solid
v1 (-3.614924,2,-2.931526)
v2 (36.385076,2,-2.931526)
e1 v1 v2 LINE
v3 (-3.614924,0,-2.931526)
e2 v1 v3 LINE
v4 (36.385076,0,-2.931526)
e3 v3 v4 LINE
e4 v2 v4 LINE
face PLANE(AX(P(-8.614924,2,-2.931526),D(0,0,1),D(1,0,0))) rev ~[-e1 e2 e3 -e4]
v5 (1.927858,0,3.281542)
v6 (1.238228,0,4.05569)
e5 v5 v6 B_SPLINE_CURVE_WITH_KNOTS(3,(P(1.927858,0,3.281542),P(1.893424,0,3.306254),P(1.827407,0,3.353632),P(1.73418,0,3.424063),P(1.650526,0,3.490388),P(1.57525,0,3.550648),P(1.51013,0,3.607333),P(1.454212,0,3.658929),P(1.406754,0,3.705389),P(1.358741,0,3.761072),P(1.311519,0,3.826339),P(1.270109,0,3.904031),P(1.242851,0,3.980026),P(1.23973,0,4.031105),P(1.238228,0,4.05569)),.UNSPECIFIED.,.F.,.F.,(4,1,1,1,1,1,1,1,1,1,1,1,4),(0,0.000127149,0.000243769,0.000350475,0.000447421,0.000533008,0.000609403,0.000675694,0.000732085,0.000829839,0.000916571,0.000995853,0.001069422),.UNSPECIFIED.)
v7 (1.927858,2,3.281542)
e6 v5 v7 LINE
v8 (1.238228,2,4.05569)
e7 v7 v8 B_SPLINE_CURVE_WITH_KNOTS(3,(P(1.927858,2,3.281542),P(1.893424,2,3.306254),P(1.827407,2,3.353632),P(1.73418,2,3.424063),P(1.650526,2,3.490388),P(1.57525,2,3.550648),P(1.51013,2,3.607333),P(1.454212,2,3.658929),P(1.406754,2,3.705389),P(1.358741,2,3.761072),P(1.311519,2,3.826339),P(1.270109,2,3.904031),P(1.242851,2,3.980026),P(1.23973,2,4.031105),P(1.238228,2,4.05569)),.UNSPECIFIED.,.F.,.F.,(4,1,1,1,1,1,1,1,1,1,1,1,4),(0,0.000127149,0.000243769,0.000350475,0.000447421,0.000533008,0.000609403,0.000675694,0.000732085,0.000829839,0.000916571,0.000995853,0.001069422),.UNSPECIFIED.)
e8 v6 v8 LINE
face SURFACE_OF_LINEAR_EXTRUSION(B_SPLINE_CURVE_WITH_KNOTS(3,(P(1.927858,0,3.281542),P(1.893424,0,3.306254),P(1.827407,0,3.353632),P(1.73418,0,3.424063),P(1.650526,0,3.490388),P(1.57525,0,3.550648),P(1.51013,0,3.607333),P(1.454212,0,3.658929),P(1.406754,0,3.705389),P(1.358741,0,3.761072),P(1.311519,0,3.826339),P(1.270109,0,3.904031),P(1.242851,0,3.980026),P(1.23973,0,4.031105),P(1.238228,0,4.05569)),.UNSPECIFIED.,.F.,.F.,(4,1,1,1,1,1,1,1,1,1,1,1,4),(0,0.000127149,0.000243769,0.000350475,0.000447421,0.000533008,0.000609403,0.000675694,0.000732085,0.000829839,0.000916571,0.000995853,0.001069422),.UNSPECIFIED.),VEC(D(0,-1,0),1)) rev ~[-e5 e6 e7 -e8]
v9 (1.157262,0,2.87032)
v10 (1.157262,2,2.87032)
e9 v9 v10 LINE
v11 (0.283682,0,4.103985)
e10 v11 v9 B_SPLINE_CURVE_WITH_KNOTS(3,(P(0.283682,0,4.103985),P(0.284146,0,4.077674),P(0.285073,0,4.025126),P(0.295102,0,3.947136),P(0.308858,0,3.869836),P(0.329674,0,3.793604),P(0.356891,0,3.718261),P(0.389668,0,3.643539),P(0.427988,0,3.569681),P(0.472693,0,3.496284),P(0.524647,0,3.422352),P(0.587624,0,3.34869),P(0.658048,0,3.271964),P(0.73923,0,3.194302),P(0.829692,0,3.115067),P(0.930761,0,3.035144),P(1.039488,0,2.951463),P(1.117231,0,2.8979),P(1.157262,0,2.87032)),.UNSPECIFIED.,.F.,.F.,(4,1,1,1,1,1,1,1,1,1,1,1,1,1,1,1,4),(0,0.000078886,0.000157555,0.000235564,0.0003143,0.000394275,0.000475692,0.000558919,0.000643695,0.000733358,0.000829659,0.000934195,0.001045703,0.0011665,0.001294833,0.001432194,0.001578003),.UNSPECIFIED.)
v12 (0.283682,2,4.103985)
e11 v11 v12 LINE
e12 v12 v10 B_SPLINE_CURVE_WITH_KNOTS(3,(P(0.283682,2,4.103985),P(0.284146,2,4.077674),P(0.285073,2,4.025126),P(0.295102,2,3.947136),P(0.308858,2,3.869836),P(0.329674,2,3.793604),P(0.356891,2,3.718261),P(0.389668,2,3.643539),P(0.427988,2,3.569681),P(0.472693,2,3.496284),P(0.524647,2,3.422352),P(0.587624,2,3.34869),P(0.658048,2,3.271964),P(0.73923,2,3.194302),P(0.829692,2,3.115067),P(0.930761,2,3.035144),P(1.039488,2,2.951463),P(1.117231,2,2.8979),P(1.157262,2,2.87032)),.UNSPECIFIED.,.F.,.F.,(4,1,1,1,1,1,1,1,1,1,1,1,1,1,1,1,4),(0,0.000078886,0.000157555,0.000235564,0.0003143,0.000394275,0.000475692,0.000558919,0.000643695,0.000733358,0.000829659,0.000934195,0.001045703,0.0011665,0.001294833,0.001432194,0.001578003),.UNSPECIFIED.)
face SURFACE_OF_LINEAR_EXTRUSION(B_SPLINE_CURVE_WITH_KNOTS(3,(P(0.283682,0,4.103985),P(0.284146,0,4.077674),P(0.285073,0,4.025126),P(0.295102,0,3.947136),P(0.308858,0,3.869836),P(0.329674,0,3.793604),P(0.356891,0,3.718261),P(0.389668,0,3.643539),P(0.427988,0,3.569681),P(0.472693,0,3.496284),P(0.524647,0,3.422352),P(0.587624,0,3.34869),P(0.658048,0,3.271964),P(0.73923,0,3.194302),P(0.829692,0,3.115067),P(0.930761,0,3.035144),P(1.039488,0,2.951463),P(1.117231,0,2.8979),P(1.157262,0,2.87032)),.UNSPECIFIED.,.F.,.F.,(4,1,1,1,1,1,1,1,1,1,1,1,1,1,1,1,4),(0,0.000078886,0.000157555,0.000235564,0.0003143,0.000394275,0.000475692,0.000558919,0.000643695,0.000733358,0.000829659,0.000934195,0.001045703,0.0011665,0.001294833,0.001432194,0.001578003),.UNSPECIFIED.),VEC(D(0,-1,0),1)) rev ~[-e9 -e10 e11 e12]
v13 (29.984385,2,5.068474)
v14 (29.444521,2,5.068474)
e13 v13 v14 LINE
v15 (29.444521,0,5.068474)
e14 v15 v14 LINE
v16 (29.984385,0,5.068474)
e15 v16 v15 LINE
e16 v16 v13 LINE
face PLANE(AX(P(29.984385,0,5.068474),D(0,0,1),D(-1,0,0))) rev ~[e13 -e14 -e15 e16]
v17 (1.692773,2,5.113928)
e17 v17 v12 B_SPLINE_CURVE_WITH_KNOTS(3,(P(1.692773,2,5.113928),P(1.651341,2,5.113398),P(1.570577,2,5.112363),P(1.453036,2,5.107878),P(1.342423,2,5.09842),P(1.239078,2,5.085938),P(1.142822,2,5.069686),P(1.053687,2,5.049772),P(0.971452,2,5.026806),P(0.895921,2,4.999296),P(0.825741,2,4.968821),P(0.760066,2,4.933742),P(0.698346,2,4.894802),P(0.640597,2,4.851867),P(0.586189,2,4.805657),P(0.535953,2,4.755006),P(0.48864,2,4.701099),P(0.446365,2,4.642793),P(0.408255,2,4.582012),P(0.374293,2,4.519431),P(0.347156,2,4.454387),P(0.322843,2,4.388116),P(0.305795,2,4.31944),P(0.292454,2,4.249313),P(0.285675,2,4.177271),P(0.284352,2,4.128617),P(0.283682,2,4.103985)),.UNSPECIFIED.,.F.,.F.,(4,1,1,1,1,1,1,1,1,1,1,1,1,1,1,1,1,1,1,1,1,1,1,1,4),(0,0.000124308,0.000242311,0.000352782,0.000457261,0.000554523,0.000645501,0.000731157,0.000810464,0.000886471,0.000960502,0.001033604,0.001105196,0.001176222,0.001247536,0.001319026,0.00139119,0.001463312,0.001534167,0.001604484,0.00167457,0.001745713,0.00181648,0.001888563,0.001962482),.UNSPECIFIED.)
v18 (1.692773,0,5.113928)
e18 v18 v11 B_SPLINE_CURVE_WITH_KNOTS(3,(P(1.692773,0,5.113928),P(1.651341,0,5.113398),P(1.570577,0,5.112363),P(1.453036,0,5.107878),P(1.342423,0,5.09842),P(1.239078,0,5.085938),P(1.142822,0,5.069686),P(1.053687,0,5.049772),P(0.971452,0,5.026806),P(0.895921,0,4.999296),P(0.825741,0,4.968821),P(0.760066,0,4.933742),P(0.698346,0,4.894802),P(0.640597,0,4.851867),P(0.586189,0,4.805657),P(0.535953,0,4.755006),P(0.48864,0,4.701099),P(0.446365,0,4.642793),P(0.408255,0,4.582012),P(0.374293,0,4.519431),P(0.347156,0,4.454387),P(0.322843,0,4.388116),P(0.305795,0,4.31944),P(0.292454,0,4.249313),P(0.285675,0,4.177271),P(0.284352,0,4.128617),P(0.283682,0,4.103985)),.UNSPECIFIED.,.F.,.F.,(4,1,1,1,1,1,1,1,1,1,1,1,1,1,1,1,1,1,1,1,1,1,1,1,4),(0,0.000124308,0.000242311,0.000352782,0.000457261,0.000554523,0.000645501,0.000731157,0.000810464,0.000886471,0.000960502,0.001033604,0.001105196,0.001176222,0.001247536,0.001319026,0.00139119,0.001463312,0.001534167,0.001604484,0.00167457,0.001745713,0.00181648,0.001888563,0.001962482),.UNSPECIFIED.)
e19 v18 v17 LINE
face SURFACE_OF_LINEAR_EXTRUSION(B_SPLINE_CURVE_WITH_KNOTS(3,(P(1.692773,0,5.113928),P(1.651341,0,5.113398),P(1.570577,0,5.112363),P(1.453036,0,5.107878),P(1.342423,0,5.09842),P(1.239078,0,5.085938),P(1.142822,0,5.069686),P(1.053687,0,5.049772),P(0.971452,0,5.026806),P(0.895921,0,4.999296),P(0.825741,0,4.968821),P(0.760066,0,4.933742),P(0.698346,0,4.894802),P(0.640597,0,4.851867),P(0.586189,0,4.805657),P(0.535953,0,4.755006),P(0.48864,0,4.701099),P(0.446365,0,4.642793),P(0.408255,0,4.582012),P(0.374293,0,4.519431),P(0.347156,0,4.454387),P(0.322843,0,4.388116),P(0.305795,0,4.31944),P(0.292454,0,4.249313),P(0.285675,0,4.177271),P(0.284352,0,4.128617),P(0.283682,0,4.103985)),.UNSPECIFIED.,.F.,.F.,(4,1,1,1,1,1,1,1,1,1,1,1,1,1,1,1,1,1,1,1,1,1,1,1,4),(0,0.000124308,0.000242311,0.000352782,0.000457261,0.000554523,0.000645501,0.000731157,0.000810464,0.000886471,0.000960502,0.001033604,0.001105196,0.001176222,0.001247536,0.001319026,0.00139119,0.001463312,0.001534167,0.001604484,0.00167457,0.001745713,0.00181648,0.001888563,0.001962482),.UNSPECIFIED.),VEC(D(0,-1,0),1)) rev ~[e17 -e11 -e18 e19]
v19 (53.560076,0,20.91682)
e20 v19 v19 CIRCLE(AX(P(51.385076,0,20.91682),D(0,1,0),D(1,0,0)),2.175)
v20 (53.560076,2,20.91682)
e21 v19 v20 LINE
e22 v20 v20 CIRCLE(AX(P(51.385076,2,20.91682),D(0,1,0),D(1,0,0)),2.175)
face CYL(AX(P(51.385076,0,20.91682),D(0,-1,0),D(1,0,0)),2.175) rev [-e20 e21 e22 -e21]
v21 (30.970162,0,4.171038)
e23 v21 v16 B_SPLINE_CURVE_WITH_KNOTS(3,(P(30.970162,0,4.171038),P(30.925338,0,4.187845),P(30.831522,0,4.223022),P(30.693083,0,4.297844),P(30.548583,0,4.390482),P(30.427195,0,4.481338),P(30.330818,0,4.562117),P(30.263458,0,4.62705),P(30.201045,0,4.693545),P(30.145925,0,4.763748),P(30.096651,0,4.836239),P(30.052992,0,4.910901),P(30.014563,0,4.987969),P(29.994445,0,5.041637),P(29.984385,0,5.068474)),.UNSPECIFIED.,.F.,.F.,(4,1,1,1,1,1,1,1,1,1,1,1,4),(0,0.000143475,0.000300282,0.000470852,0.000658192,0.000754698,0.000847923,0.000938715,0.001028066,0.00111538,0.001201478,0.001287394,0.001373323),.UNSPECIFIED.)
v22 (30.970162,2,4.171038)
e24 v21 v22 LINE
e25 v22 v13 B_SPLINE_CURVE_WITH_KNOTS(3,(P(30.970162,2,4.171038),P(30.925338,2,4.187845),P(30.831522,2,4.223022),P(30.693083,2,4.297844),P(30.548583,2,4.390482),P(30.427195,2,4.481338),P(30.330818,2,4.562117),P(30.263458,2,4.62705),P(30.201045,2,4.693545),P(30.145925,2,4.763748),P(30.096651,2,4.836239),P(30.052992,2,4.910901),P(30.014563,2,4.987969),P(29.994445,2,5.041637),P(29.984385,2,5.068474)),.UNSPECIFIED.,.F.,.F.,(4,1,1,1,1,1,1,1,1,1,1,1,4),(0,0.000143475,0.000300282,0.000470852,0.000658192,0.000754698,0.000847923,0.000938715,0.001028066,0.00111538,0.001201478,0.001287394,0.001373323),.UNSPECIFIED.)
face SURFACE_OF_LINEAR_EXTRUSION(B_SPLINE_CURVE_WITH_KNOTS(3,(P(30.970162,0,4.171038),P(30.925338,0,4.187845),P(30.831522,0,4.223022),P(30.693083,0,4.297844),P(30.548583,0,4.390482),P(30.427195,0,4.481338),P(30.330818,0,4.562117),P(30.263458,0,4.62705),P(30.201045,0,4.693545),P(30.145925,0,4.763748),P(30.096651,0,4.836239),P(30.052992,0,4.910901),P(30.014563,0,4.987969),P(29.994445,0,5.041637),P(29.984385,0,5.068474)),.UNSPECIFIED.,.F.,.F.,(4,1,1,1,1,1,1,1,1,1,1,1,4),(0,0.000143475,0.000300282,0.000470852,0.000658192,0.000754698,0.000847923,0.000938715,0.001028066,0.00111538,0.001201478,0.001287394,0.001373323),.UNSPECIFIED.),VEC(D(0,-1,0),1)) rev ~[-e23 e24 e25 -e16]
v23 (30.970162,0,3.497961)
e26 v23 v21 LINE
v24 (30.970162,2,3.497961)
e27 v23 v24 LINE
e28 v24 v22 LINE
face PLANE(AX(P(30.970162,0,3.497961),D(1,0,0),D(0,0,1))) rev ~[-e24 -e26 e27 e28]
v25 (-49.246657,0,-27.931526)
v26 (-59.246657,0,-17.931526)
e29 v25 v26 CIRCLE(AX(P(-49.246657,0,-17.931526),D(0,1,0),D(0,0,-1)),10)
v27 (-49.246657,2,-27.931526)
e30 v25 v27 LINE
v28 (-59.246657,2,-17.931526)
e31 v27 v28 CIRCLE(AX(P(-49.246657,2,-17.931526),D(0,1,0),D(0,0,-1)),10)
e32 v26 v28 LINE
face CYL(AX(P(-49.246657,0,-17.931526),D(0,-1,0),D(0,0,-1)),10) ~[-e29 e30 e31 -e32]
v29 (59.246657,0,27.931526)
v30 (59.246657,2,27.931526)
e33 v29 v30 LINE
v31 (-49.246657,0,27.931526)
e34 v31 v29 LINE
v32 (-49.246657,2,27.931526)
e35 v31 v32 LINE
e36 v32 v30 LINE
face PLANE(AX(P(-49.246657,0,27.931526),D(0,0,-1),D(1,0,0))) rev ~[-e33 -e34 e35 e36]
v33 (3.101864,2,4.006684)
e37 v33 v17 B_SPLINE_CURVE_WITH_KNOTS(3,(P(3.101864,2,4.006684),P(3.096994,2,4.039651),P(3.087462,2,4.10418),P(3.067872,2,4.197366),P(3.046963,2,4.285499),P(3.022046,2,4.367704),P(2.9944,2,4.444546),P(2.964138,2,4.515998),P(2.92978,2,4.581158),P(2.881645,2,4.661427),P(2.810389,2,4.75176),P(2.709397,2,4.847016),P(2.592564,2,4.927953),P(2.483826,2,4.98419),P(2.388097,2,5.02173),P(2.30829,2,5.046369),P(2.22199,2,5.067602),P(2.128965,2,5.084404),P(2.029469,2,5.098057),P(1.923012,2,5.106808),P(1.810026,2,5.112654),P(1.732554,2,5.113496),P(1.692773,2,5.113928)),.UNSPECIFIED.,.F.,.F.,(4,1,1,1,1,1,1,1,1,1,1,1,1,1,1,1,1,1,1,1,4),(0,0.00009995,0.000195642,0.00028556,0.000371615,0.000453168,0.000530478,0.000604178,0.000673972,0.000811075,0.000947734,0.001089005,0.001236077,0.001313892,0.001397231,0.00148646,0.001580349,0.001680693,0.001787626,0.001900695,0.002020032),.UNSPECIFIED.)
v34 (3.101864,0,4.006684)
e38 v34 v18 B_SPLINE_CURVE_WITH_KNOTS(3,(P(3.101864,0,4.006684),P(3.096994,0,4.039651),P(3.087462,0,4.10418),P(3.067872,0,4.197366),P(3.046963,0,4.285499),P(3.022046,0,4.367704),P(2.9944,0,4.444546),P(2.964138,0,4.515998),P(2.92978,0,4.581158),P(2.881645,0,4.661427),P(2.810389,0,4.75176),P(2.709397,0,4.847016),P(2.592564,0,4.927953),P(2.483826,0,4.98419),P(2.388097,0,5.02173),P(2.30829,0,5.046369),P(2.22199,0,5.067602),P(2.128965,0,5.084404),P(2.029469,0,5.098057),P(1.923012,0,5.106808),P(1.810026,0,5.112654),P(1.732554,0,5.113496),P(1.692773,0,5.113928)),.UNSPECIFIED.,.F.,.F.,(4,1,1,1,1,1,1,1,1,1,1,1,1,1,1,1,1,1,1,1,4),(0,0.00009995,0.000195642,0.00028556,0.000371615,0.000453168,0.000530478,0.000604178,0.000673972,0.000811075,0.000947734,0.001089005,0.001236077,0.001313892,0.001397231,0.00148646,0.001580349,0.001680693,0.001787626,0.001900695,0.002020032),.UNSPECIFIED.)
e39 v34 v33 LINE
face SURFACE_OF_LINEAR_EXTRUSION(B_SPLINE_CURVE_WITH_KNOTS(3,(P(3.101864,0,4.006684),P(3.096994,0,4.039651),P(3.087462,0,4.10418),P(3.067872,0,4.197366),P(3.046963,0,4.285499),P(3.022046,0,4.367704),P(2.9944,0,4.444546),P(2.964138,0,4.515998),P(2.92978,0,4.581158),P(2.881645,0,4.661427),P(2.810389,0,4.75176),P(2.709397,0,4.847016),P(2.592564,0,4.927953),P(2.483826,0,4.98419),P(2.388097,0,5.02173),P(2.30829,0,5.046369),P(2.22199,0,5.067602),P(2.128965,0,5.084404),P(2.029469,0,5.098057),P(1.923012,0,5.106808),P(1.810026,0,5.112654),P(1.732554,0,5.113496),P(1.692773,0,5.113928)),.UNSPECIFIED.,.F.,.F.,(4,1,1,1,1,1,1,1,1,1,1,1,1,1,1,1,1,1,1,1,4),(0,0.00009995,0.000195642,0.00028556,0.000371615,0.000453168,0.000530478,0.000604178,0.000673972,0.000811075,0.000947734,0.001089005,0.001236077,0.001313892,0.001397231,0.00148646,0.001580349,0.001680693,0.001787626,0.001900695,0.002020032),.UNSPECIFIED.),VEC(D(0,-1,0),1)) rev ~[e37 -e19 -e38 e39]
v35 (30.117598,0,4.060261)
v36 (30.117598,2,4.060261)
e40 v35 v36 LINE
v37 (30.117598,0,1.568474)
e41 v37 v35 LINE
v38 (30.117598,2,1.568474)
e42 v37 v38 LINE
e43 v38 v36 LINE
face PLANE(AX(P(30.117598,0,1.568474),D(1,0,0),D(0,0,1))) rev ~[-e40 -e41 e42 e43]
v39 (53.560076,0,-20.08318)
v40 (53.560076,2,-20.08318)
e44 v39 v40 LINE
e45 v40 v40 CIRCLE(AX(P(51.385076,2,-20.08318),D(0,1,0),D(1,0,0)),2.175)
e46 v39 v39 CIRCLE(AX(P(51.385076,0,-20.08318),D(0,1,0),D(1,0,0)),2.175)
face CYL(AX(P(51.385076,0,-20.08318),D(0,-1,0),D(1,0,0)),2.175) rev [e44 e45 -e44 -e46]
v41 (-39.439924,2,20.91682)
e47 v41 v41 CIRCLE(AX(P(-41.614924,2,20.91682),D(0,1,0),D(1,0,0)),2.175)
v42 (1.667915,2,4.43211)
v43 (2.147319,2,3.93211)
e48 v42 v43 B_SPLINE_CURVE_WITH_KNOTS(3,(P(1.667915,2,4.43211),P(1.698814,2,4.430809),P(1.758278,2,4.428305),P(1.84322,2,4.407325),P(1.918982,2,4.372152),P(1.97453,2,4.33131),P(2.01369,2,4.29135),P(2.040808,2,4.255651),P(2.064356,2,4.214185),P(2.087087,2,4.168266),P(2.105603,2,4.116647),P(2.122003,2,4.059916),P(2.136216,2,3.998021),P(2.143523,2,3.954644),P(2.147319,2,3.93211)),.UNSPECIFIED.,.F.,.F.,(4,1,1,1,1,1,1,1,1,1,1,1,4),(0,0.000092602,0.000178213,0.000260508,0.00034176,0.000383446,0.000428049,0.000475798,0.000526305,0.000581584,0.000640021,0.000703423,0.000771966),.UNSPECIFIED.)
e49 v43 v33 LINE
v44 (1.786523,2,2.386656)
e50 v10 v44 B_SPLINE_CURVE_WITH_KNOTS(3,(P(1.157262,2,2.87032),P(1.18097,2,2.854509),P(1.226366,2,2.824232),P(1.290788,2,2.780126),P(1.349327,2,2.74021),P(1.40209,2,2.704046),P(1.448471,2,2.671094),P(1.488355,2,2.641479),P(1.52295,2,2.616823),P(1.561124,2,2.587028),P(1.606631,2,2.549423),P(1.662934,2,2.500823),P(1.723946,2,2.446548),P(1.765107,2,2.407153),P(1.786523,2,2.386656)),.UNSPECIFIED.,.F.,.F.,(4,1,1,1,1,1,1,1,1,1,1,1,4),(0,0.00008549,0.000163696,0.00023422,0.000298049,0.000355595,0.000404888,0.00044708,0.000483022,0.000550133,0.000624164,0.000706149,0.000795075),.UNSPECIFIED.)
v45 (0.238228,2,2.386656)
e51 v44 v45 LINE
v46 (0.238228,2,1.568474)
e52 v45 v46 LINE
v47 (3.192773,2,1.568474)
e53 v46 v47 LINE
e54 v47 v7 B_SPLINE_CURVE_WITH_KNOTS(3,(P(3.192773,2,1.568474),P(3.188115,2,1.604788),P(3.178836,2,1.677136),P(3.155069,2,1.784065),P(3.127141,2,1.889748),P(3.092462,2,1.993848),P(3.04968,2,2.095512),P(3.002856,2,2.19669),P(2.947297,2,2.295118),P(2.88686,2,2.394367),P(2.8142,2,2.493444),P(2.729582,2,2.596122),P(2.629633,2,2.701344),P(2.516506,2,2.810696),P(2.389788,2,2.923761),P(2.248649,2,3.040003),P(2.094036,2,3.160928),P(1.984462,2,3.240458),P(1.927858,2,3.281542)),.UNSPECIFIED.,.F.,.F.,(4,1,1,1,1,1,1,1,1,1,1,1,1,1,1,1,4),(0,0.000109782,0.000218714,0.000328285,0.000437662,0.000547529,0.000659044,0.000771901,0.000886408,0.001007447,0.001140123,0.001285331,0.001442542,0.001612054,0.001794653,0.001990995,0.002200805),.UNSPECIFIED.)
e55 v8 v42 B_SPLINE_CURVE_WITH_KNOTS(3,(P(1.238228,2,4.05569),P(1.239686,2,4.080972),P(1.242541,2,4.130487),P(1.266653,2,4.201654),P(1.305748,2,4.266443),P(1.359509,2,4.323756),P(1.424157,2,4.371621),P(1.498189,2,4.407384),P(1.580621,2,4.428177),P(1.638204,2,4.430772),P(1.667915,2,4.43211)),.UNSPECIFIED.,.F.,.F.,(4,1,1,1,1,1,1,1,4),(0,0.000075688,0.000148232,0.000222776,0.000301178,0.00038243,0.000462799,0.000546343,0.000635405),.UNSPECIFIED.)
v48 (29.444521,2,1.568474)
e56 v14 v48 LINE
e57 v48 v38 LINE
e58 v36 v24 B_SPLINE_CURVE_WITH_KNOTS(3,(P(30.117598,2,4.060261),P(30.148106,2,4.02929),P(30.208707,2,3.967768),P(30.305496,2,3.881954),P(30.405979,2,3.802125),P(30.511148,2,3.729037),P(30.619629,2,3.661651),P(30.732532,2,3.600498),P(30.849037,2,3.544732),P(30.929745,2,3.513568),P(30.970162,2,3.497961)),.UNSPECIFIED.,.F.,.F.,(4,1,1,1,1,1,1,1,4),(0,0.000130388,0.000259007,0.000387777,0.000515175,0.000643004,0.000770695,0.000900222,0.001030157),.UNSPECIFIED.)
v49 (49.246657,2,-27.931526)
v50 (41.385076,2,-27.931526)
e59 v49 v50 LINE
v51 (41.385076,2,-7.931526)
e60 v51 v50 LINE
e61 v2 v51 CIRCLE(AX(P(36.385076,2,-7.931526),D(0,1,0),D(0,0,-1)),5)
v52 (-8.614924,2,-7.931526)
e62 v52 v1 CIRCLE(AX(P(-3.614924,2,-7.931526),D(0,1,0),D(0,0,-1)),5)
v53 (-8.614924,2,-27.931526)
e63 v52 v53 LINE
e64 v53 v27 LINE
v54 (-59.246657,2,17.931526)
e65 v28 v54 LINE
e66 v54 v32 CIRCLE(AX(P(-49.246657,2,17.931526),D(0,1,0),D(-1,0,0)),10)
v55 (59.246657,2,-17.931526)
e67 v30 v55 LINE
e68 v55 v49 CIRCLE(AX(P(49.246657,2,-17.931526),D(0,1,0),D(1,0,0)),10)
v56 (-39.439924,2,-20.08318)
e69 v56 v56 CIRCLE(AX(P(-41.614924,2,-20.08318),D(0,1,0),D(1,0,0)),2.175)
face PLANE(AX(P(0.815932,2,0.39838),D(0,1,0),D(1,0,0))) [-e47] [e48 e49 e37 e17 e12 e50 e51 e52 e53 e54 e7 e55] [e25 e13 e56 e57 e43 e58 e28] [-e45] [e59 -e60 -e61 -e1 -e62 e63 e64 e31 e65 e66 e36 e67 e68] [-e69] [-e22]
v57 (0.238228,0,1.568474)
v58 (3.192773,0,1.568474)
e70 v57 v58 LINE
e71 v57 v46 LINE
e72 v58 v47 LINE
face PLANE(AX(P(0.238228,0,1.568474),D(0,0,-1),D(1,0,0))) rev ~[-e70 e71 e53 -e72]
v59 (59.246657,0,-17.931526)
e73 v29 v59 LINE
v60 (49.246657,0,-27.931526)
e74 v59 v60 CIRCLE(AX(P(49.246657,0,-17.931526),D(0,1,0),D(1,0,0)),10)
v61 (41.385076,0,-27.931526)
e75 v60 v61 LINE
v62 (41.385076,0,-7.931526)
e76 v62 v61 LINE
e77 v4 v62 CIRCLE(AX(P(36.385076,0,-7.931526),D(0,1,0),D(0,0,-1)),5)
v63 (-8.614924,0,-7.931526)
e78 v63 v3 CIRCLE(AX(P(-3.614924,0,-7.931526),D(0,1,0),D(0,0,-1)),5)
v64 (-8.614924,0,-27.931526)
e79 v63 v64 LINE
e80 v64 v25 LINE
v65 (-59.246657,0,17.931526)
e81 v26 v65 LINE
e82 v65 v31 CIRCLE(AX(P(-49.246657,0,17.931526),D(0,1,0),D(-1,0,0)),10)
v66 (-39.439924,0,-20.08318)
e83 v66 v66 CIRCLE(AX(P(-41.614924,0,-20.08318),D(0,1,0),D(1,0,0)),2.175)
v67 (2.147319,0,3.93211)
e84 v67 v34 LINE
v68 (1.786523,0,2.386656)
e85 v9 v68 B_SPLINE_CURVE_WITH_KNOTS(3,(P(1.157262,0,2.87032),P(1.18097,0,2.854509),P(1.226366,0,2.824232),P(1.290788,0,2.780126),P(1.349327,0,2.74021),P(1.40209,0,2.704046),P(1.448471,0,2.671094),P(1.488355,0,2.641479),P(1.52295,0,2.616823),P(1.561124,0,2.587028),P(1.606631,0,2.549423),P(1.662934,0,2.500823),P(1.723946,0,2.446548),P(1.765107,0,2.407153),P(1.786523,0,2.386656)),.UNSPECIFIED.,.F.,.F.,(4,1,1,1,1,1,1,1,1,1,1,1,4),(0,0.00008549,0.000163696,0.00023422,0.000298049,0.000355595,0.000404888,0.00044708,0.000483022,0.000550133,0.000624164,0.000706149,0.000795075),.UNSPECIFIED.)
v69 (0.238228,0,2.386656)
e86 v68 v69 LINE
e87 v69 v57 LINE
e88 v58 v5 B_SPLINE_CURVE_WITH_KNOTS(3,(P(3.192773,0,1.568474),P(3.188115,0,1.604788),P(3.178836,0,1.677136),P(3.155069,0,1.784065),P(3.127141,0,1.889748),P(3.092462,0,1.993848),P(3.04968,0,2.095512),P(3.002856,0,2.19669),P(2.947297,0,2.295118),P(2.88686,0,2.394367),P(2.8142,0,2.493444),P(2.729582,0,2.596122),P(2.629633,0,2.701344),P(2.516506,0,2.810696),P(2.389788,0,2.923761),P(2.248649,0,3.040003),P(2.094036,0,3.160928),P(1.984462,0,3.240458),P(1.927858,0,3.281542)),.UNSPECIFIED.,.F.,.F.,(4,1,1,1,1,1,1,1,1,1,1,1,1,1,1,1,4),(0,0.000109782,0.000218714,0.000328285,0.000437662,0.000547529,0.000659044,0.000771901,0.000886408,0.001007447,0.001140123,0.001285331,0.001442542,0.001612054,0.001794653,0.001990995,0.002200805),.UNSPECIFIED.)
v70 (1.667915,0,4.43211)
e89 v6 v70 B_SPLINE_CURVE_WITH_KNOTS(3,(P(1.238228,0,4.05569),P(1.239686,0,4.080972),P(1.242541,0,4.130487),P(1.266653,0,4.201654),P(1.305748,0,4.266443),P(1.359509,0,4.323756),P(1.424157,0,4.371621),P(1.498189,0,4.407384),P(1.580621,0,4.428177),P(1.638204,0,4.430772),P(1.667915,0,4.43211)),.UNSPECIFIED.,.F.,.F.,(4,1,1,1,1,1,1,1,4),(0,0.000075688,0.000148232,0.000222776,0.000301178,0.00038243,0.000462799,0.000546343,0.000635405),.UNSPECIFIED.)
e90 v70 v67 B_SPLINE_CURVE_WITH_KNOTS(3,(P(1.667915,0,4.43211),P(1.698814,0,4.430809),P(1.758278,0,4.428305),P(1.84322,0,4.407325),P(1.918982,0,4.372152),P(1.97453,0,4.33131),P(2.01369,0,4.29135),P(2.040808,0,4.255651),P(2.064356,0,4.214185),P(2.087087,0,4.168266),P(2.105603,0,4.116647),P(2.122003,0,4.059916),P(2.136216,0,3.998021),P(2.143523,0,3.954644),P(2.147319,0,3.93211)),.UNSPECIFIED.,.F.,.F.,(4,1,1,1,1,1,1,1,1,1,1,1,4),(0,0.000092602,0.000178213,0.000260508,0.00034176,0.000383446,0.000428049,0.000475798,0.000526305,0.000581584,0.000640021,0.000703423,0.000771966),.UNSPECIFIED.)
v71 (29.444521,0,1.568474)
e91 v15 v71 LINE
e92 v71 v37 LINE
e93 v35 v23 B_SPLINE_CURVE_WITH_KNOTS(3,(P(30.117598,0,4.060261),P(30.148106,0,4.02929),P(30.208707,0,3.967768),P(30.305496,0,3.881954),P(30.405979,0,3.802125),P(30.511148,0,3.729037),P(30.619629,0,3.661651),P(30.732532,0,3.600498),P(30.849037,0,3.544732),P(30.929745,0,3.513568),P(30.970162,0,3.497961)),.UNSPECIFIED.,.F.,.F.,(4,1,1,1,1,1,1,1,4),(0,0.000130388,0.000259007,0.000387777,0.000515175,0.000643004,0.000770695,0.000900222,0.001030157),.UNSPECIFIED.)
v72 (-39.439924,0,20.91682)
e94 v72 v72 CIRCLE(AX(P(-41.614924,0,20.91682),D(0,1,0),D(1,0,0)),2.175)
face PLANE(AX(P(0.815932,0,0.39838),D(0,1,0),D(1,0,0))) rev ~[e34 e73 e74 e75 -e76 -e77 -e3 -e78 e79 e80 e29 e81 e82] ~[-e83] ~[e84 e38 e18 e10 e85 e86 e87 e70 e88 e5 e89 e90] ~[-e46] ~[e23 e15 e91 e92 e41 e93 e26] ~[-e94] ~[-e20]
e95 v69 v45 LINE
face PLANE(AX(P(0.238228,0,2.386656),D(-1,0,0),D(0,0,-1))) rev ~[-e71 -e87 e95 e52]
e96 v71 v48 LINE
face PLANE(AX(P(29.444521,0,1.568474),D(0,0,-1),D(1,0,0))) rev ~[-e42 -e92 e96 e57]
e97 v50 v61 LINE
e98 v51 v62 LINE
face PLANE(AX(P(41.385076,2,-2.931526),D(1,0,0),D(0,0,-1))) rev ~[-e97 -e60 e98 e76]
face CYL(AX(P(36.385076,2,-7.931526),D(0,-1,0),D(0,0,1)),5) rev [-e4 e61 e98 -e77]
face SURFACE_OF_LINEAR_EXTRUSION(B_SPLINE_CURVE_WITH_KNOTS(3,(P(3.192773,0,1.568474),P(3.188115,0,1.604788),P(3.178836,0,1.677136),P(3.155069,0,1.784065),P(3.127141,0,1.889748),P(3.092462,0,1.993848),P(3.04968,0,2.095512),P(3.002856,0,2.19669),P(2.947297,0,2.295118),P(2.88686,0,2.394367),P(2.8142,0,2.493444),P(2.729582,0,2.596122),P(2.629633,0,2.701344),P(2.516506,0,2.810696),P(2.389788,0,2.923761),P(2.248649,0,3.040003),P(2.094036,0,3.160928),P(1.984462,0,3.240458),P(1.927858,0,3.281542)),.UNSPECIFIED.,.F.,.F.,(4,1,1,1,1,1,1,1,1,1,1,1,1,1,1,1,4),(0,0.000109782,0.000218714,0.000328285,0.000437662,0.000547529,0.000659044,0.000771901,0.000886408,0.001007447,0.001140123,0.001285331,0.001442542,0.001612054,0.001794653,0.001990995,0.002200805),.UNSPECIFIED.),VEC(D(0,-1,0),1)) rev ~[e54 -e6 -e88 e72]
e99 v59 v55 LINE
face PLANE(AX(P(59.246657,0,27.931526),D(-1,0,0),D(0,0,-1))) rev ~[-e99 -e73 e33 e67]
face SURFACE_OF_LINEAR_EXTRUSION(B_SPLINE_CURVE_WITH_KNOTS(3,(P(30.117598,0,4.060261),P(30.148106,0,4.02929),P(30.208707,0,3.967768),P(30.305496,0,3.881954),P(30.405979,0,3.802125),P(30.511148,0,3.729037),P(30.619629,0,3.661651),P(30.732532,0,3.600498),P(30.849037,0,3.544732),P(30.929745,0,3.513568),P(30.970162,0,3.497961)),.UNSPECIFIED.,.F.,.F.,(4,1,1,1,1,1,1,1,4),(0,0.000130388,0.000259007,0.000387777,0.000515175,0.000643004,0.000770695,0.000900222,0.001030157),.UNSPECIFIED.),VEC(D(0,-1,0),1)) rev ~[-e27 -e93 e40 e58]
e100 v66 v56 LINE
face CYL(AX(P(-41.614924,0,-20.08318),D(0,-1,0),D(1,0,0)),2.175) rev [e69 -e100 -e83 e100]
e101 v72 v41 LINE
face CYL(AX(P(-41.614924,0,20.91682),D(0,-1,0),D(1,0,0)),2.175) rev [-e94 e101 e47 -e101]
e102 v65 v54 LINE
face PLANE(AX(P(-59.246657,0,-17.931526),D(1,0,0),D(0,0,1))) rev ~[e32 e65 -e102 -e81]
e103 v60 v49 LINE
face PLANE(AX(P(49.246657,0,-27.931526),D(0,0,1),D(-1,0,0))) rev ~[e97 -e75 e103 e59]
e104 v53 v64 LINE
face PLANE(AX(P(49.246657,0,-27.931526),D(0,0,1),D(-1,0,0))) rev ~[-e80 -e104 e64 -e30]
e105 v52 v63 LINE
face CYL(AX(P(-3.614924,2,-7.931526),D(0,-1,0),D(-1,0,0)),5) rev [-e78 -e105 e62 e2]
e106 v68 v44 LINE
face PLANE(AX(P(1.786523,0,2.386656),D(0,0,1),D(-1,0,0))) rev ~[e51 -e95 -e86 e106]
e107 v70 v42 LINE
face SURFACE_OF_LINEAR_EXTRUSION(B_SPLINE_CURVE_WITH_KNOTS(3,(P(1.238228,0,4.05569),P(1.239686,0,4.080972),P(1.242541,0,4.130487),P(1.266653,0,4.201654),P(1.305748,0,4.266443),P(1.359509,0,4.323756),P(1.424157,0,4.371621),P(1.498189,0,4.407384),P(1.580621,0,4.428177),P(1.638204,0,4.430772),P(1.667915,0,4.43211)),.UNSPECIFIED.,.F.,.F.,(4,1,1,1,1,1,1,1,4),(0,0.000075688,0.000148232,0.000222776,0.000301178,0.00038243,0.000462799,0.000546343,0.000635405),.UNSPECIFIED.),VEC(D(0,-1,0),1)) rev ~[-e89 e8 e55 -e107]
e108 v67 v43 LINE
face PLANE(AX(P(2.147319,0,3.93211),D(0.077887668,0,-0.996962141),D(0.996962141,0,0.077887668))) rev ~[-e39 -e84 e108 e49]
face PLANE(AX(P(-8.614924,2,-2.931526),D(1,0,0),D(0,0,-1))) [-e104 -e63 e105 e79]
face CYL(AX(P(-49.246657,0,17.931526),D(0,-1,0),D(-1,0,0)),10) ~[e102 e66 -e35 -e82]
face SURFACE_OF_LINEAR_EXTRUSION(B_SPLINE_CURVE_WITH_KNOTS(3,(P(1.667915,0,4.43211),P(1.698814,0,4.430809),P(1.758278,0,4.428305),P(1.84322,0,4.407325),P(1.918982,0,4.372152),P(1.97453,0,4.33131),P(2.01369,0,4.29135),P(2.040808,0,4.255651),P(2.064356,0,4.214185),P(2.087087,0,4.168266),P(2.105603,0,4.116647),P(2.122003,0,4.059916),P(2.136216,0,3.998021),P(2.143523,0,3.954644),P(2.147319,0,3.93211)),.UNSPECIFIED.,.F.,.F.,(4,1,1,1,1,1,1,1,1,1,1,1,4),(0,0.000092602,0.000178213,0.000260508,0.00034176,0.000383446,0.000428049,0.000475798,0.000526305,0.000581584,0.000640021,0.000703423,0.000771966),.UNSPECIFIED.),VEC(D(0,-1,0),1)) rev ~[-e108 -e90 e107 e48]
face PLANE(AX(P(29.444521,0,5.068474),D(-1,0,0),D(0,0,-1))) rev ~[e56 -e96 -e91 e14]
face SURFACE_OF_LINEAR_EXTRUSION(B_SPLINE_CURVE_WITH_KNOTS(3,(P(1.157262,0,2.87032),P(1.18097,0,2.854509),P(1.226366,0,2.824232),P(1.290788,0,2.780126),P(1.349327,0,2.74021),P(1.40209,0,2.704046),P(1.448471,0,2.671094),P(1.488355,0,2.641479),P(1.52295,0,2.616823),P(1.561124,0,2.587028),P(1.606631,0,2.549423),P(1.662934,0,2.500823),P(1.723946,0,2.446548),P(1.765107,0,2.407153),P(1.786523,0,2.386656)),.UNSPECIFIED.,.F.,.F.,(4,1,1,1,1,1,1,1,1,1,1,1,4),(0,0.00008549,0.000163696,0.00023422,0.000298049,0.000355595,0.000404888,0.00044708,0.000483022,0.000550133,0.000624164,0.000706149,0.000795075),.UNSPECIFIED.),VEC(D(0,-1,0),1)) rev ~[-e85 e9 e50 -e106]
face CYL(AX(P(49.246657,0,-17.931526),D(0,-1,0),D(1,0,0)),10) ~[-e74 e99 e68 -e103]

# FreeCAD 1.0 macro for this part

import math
import FreeCAD as App
import Part
import Sketcher
from FreeCAD import Vector
Q = App.Units.Quantity


def edges_at(feature, points):
    """Names of the edges that pass closest to the given points."""
    edges = feature.Shape.Edges
    near = lambda p: min(range(len(edges)), key=lambda i: edges[i].distToShape(Part.Vertex(*p))[0])
    return sorted({f"Edge{near(p) + 1}" for p in points})

doc = App.newDocument("Part")
params = doc.addObject("Spreadsheet::Sheet", "Params")
for row, (alias, value) in enumerate([
    ("sketch1_radius", "10 mm"),
    ("sketch1_diameter", "4.35 mm"),
    ("pad1_length", "2 mm"),
    ("sketch2_width", "50 mm"),
    ("sketch2_height", "25 mm"),
    ("pocket1_length", "2 mm"),
    ("fillet_radius", "5 mm"),
    ("pocket2_length", "2 mm"),
], start=1):
    params.set(f"A{row}", alias)
    params.set(f"B{row}", "=" + value)
    params.setAlias(f"B{row}", alias)

body = doc.addObject("PartDesign::Body", "Body")

# Sketch on XZ plane
sketch1 = doc.addObject("Sketcher::SketchObject", "Sketch")
body.addObject(sketch1)
sketch1.AttachmentSupport = (doc.XZ_Plane, [""])
sketch1.MapMode = "FlatFace"
sketch1.addGeometry([
    Part.LineSegment(Vector(-59.2, -17.9, 0), Vector(-59.2, 17.9, 0)),  # 0
    Part.ArcOfCircle(Part.Circle(Vector(-49.2, 17.9, 0), Vector(0, 0, 1), 10), math.radians(90), math.radians(180)),  # 1
    Part.LineSegment(Vector(-49.2, 27.9, 0), Vector(59.2, 27.9, 0)),  # 2
    Part.LineSegment(Vector(59.2, 27.9, 0), Vector(59.2, -17.9, 0)),  # 3
    Part.ArcOfCircle(Part.Circle(Vector(49.2, -17.9, 0), Vector(0, 0, 1), 10), math.radians(-90), math.radians(0)),  # 4
    Part.LineSegment(Vector(49.2, -27.9, 0), Vector(-49.2, -27.9, 0)),  # 5
    Part.ArcOfCircle(Part.Circle(Vector(-49.2, -17.9, 0), Vector(0, 0, 1), 10), math.radians(180), math.radians(270)),  # 6
    Part.Circle(Vector(-41.6, 20.9, 0), Vector(0, 0, 1), 2.2),  # 7
    Part.Circle(Vector(51.4, 20.9, 0), Vector(0, 0, 1), 2.2),  # 8
    Part.Circle(Vector(-41.6, -20.1, 0), Vector(0, 0, 1), 2.2),  # 9
    Part.Circle(Vector(51.4, -20.1, 0), Vector(0, 0, 1), 2.2),  # 10
], False)
sketch1.addConstraint([
    Sketcher.Constraint("Tangent", 0, 2, 1, 2),
    Sketcher.Constraint("Tangent", 1, 1, 2, 1),
    Sketcher.Constraint("Coincident", 2, 2, 3, 1),
    Sketcher.Constraint("Tangent", 3, 2, 4, 2),
    Sketcher.Constraint("Tangent", 4, 1, 5, 1),
    Sketcher.Constraint("Tangent", 5, 2, 6, 2),
    Sketcher.Constraint("Tangent", 6, 1, 0, 1),
    Sketcher.Constraint("Vertical", 0),
    Sketcher.Constraint("Horizontal", 2),
    Sketcher.Constraint("Vertical", 3),
    Sketcher.Constraint("Horizontal", 5),
    Sketcher.Constraint("Equal", 1, 4),
    Sketcher.Constraint("Equal", 4, 6),
    Sketcher.Constraint("Equal", 7, 8),
    Sketcher.Constraint("Equal", 8, 9),
    Sketcher.Constraint("Equal", 9, 10),
    Sketcher.Constraint("Symmetric", 1, 3, 4, 3, -1, 1),
    Sketcher.Constraint("Horizontal", 7, 3, 8, 3),
    Sketcher.Constraint("Horizontal", 9, 3, 10, 3),
    Sketcher.Constraint("Vertical", 7, 3, 9, 3),
    Sketcher.Constraint("Vertical", 8, 3, 10, 3),
    Sketcher.Constraint("Radius", 1, Q("10 mm")),
    Sketcher.Constraint("Diameter", 7, Q("4.35 mm")),
    Sketcher.Constraint("DistanceX", 7, 3, 8, 3, Q("93 mm")),
    Sketcher.Constraint("DistanceY", 9, 3, 7, 3, Q("41 mm")),
    Sketcher.Constraint("DistanceX", 2, 1, 2, 2, Q("108.493314 mm")),
    Sketcher.Constraint("DistanceY", 0, 1, 0, 2, Q("35.863053 mm")),
    Sketcher.Constraint("DistanceY", -1, 1, 7, 3, Q("20.91682 mm")),
    Sketcher.Constraint("DistanceX", 7, 3, 4, 3, Q("90.861581 mm")),
])
sketch1.setExpression("Constraints[21]", "Params.sketch1_radius")
sketch1.setExpression("Constraints[22]", "Params.sketch1_diameter")
pad1 = doc.addObject("PartDesign::Pad", "Pad")
body.addObject(pad1)
pad1.Profile = sketch1
pad1.setExpression("Length", "Params.pad1_length")
pad1.Reversed = True

# Sketch on XZ plane
sketch2 = doc.addObject("Sketcher::SketchObject", "Sketch001")
body.addObject(sketch2)
sketch2.AttachmentSupport = (doc.XZ_Plane, [""])
sketch2.MapMode = "FlatFace"
sketch2.AttachmentOffset = App.Placement(Vector(0, 0, -2), App.Rotation())
sketch2.addGeometry([
    Part.LineSegment(Vector(-9, -28, 0), Vector(-9, -3, 0)),
    Part.LineSegment(Vector(-9, -3, 0), Vector(41, -3, 0)),
    Part.LineSegment(Vector(41, -3, 0), Vector(41, -28, 0)),
    Part.LineSegment(Vector(41, -28, 0), Vector(-9, -28, 0)),
], False)
sketch2.addConstraint([
    Sketcher.Constraint("Coincident", 0, 2, 1, 1),
    Sketcher.Constraint("Coincident", 1, 2, 2, 1),
    Sketcher.Constraint("Coincident", 2, 2, 3, 1),
    Sketcher.Constraint("Coincident", 3, 2, 0, 1),
    Sketcher.Constraint("Vertical", 0),
    Sketcher.Constraint("Horizontal", 1),
    Sketcher.Constraint("Vertical", 2),
    Sketcher.Constraint("Horizontal", 3),
    Sketcher.Constraint("DistanceX", 1, 1, 1, 2, Q("50 mm")),
    Sketcher.Constraint("DistanceY", 0, 1, 0, 2, Q("25 mm")),
    Sketcher.Constraint("DistanceX", 0, 2, -1, 1, Q("8.614924 mm")),
    Sketcher.Constraint("DistanceY", 0, 2, -1, 1, Q("2.931526 mm")),
])
sketch2.setExpression("Constraints[8]", "Params.sketch2_width")
sketch2.setExpression("Constraints[9]", "Params.sketch2_height")
pocket1 = doc.addObject("PartDesign::Pocket", "Pocket")
body.addObject(pocket1)
pocket1.Profile = sketch2
pocket1.setExpression("Length", "Params.pocket1_length")
pocket1.Reversed = True
doc.recompute()

fillet = doc.addObject("PartDesign::Fillet", "Fillet")
body.addObject(fillet)
fillet.Base = (pocket1, edges_at(pocket1, [(41.385, 1, -2.932), (-8.615, 1, -2.932)]))
fillet.setExpression("Radius", "Params.fillet_radius")

# Sketch on XZ plane
sketch3 = doc.addObject("Sketcher::SketchObject", "Sketch002")
body.addObject(sketch3)
sketch3.AttachmentSupport = (doc.XZ_Plane, [""])
sketch3.MapMode = "FlatFace"
sketch3.addGeometry([
    Part.LineSegment(Vector(29.444521, 1.568474, 0), Vector(30.117598, 1.568474, 0)),  # 0
    Part.LineSegment(Vector(30.117598, 1.568474, 0), Vector(30.117598, 4.060261, 0)),  # 1
    Part.BSplineCurve([Vector(30.117598, 4.060261, 0), Vector(30.148106, 4.02929, 0), Vector(30.208707, 3.967768, 0), Vector(30.305496, 3.881954, 0), Vector(30.405979, 3.802125, 0), Vector(30.511148, 3.729037, 0), Vector(30.619629, 3.661651, 0), Vector(30.732532, 3.600498, 0), Vector(30.849037, 3.544732, 0), Vector(30.929745, 3.513568, 0), Vector(30.970162, 3.497961, 0)], [4, 1, 1, 1, 1, 1, 1, 1, 4], [0, 0.000130388, 0.000259007, 0.000387777, 0.000515175, 0.000643004, 0.000770695, 0.000900222, 0.001030157], False, 3, [1, 1, 1, 1, 1, 1, 1, 1, 1, 1, 1], False),  # 2
    Part.LineSegment(Vector(30.970162, 3.497961, 0), Vector(30.970162, 4.171038, 0)),  # 3
    Part.BSplineCurve([Vector(30.970162, 4.171038, 0), Vector(30.925338, 4.187845, 0), Vector(30.831522, 4.223022, 0), Vector(30.693083, 4.297844, 0), Vector(30.548583, 4.390482, 0), Vector(30.427195, 4.481338, 0), Vector(30.330818, 4.562117, 0), Vector(30.263458, 4.62705, 0), Vector(30.201045, 4.693545, 0), Vector(30.145925, 4.763748, 0), Vector(30.096651, 4.836239, 0), Vector(30.052992, 4.910901, 0), Vector(30.014563, 4.987969, 0), Vector(29.994445, 5.041637, 0), Vector(29.984385, 5.068474, 0)], [4, 1, 1, 1, 1, 1, 1, 1, 1, 1, 1, 1, 4], [0, 0.000143475, 0.000300282, 0.000470852, 0.000658192, 0.000754698, 0.000847923, 0.000938715, 0.001028066, 0.00111538, 0.001201478, 0.001287394, 0.001373323], False, 3, [1, 1, 1, 1, 1, 1, 1, 1, 1, 1, 1, 1, 1, 1, 1], False),  # 4
    Part.LineSegment(Vector(29.984385, 5.068474, 0), Vector(29.444521, 5.068474, 0)),  # 5
    Part.LineSegment(Vector(29.444521, 5.068474, 0), Vector(29.444521, 1.568474, 0)),  # 6
    Part.LineSegment(Vector(0.238228, 1.568474, 0), Vector(3.192773, 1.568474, 0)),  # 7
    Part.BSplineCurve([Vector(3.192773, 1.568474, 0), Vector(3.188115, 1.604788, 0), Vector(3.178836, 1.677136, 0), Vector(3.155069, 1.784065, 0), Vector(3.127141, 1.889748, 0), Vector(3.092462, 1.993848, 0), Vector(3.04968, 2.095512, 0), Vector(3.002856, 2.19669, 0), Vector(2.947297, 2.295118, 0), Vector(2.88686, 2.394367, 0), Vector(2.8142, 2.493444, 0), Vector(2.729582, 2.596122, 0), Vector(2.629633, 2.701344, 0), Vector(2.516506, 2.810696, 0), Vector(2.389788, 2.923761, 0), Vector(2.248649, 3.040003, 0), Vector(2.094036, 3.160928, 0), Vector(1.984462, 3.240458, 0), Vector(1.927858, 3.281542, 0)], [4, 1, 1, 1, 1, 1, 1, 1, 1, 1, 1, 1, 1, 1, 1, 1, 4], [0, 0.000109782, 0.000218714, 0.000328285, 0.000437662, 0.000547529, 0.000659044, 0.000771901, 0.000886408, 0.001007447, 0.001140123, 0.001285331, 0.001442542, 0.001612054, 0.001794653, 0.001990995, 0.002200805], False, 3, [1, 1, 1, 1, 1, 1, 1, 1, 1, 1, 1, 1, 1, 1, 1, 1, 1, 1, 1], False),  # 8
    Part.BSplineCurve([Vector(1.927858, 3.281542, 0), Vector(1.893424, 3.306254, 0), Vector(1.827407, 3.353632, 0), Vector(1.73418, 3.424063, 0), Vector(1.650526, 3.490388, 0), Vector(1.57525, 3.550648, 0), Vector(1.51013, 3.607333, 0), Vector(1.454212, 3.658929, 0), Vector(1.406754, 3.705389, 0), Vector(1.358741, 3.761072, 0), Vector(1.311519, 3.826339, 0), Vector(1.270109, 3.904031, 0), Vector(1.242851, 3.980026, 0), Vector(1.23973, 4.031105, 0), Vector(1.238228, 4.05569, 0)], [4, 1, 1, 1, 1, 1, 1, 1, 1, 1, 1, 1, 4], [0, 0.000127149, 0.000243769, 0.000350475, 0.000447421, 0.000533008, 0.000609403, 0.000675694, 0.000732085, 0.000829839, 0.000916571, 0.000995853, 0.001069422], False, 3, [1, 1, 1, 1, 1, 1, 1, 1, 1, 1, 1, 1, 1, 1, 1], False),  # 9
    Part.BSplineCurve([Vector(1.238228, 4.05569, 0), Vector(1.239686, 4.080972, 0), Vector(1.242541, 4.130487, 0), Vector(1.266653, 4.201654, 0), Vector(1.305748, 4.266443, 0), Vector(1.359509, 4.323756, 0), Vector(1.424157, 4.371621, 0), Vector(1.498189, 4.407384, 0), Vector(1.580621, 4.428177, 0), Vector(1.638204, 4.430772, 0), Vector(1.667915, 4.43211, 0)], [4, 1, 1, 1, 1, 1, 1, 1, 4], [0, 0.000075688, 0.000148232, 0.000222776, 0.000301178, 0.00038243, 0.000462799, 0.000546343, 0.000635405], False, 3, [1, 1, 1, 1, 1, 1, 1, 1, 1, 1, 1], False),  # 10
    Part.BSplineCurve([Vector(1.667915, 4.43211, 0), Vector(1.698814, 4.430809, 0), Vector(1.758278, 4.428305, 0), Vector(1.84322, 4.407325, 0), Vector(1.918982, 4.372152, 0), Vector(1.97453, 4.33131, 0), Vector(2.01369, 4.29135, 0), Vector(2.040808, 4.255651, 0), Vector(2.064356, 4.214185, 0), Vector(2.087087, 4.168266, 0), Vector(2.105603, 4.116647, 0), Vector(2.122003, 4.059916, 0), Vector(2.136216, 3.998021, 0), Vector(2.143523, 3.954644, 0), Vector(2.147319, 3.93211, 0)], [4, 1, 1, 1, 1, 1, 1, 1, 1, 1, 1, 1, 4], [0, 0.000092602, 0.000178213, 0.000260508, 0.00034176, 0.000383446, 0.000428049, 0.000475798, 0.000526305, 0.000581584, 0.000640021, 0.000703423, 0.000771966], False, 3, [1, 1, 1, 1, 1, 1, 1, 1, 1, 1, 1, 1, 1, 1, 1], False),  # 11
    Part.LineSegment(Vector(2.147319, 3.93211, 0), Vector(3.101864, 4.006684, 0)),  # 12
    Part.BSplineCurve([Vector(3.101864, 4.006684, 0), Vector(3.096994, 4.039651, 0), Vector(3.087462, 4.10418, 0), Vector(3.067872, 4.197366, 0), Vector(3.046963, 4.285499, 0), Vector(3.022046, 4.367704, 0), Vector(2.9944, 4.444546, 0), Vector(2.964138, 4.515998, 0), Vector(2.92978, 4.581158, 0), Vector(2.881645, 4.661427, 0), Vector(2.810389, 4.75176, 0), Vector(2.709397, 4.847016, 0), Vector(2.592564, 4.927953, 0), Vector(2.483826, 4.98419, 0), Vector(2.388097, 5.02173, 0), Vector(2.30829, 5.046369, 0), Vector(2.22199, 5.067602, 0), Vector(2.128965, 5.084404, 0), Vector(2.029469, 5.098057, 0), Vector(1.923012, 5.106808, 0), Vector(1.810026, 5.112654, 0), Vector(1.732554, 5.113496, 0), Vector(1.692773, 5.113928, 0)], [4, 1, 1, 1, 1, 1, 1, 1, 1, 1, 1, 1, 1, 1, 1, 1, 1, 1, 1, 1, 4], [0, 0.00009995, 0.000195642, 0.00028556, 0.000371615, 0.000453168, 0.000530478, 0.000604178, 0.000673972, 0.000811075, 0.000947734, 0.001089005, 0.001236077, 0.001313892, 0.001397231, 0.00148646, 0.001580349, 0.001680693, 0.001787626, 0.001900695, 0.002020032], False, 3, [1, 1, 1, 1, 1, 1, 1, 1, 1, 1, 1, 1, 1, 1, 1, 1, 1, 1, 1, 1, 1, 1, 1], False),  # 13
    Part.BSplineCurve([Vector(1.692773, 5.113928, 0), Vector(1.651341, 5.113398, 0), Vector(1.570577, 5.112363, 0), Vector(1.453036, 5.107878, 0), Vector(1.342423, 5.09842, 0), Vector(1.239078, 5.085938, 0), Vector(1.142822, 5.069686, 0), Vector(1.053687, 5.049772, 0), Vector(0.971452, 5.026806, 0), Vector(0.895921, 4.999296, 0), Vector(0.825741, 4.968821, 0), Vector(0.760066, 4.933742, 0), Vector(0.698346, 4.894802, 0), Vector(0.640597, 4.851867, 0), Vector(0.586189, 4.805657, 0), Vector(0.535953, 4.755006, 0), Vector(0.48864, 4.701099, 0), Vector(0.446365, 4.642793, 0), Vector(0.408255, 4.582012, 0), Vector(0.374293, 4.519431, 0), Vector(0.347156, 4.454387, 0), Vector(0.322843, 4.388116, 0), Vector(0.305795, 4.31944, 0), Vector(0.292454, 4.249313, 0), Vector(0.285675, 4.177271, 0), Vector(0.284352, 4.128617, 0), Vector(0.283682, 4.103985, 0)], [4, 1, 1, 1, 1, 1, 1, 1, 1, 1, 1, 1, 1, 1, 1, 1, 1, 1, 1, 1, 1, 1, 1, 1, 4], [0, 0.000124308, 0.000242311, 0.000352782, 0.000457261, 0.000554523, 0.000645501, 0.000731157, 0.000810464, 0.000886471, 0.000960502, 0.001033604, 0.001105196, 0.001176222, 0.001247536, 0.001319026, 0.00139119, 0.001463312, 0.001534167, 0.001604484, 0.00167457, 0.001745713, 0.00181648, 0.001888563, 0.001962482], False, 3, [1, 1, 1, 1, 1, 1, 1, 1, 1, 1, 1, 1, 1, 1, 1, 1, 1, 1, 1, 1, 1, 1, 1, 1, 1, 1, 1], False),  # 14
    Part.BSplineCurve([Vector(0.283682, 4.103985, 0), Vector(0.284146, 4.077674, 0), Vector(0.285073, 4.025126, 0), Vector(0.295102, 3.947136, 0), Vector(0.308858, 3.869836, 0), Vector(0.329674, 3.793604, 0), Vector(0.356891, 3.718261, 0), Vector(0.389668, 3.643539, 0), Vector(0.427988, 3.569681, 0), Vector(0.472693, 3.496284, 0), Vector(0.524647, 3.422352, 0), Vector(0.587624, 3.34869, 0), Vector(0.658048, 3.271964, 0), Vector(0.73923, 3.194302, 0), Vector(0.829692, 3.115067, 0), Vector(0.930761, 3.035144, 0), Vector(1.039488, 2.951463, 0), Vector(1.117231, 2.8979, 0), Vector(1.157262, 2.87032, 0)], [4, 1, 1, 1, 1, 1, 1, 1, 1, 1, 1, 1, 1, 1, 1, 1, 4], [0, 0.000078886, 0.000157555, 0.000235564, 0.0003143, 0.000394275, 0.000475692, 0.000558919, 0.000643695, 0.000733358, 0.000829659, 0.000934195, 0.001045703, 0.0011665, 0.001294833, 0.001432194, 0.001578003], False, 3, [1, 1, 1, 1, 1, 1, 1, 1, 1, 1, 1, 1, 1, 1, 1, 1, 1, 1, 1], False),  # 15
    Part.BSplineCurve([Vector(1.157262, 2.87032, 0), Vector(1.18097, 2.854509, 0), Vector(1.226366, 2.824232, 0), Vector(1.290788, 2.780126, 0), Vector(1.349327, 2.74021, 0), Vector(1.40209, 2.704046, 0), Vector(1.448471, 2.671094, 0), Vector(1.488355, 2.641479, 0), Vector(1.52295, 2.616823, 0), Vector(1.561124, 2.587028, 0), Vector(1.606631, 2.549423, 0), Vector(1.662934, 2.500823, 0), Vector(1.723946, 2.446548, 0), Vector(1.765107, 2.407153, 0), Vector(1.786523, 2.386656, 0)], [4, 1, 1, 1, 1, 1, 1, 1, 1, 1, 1, 1, 4], [0, 0.00008549, 0.000163696, 0.00023422, 0.000298049, 0.000355595, 0.000404888, 0.00044708, 0.000483022, 0.000550133, 0.000624164, 0.000706149, 0.000795075], False, 3, [1, 1, 1, 1, 1, 1, 1, 1, 1, 1, 1, 1, 1, 1, 1], False),  # 16
    Part.LineSegment(Vector(1.786523, 2.386656, 0), Vector(0.238228, 2.386656, 0)),  # 17
    Part.LineSegment(Vector(0.238228, 2.386656, 0), Vector(0.238228, 1.568474, 0)),  # 18
], False)
sketch3.addConstraint([
    Sketcher.Constraint("Block", 2),
    Sketcher.Constraint("Block", 4),
    Sketcher.Constraint("Block", 8),
    Sketcher.Constraint("Block", 9),
    Sketcher.Constraint("Block", 10),
    Sketcher.Constraint("Block", 11),
    Sketcher.Constraint("Block", 13),
    Sketcher.Constraint("Block", 14),
    Sketcher.Constraint("Block", 15),
    Sketcher.Constraint("Block", 16),
    Sketcher.Constraint("Coincident", 0, 2, 1, 1),
    Sketcher.Constraint("Coincident", 1, 2, 2, 1),
    Sketcher.Constraint("Coincident", 2, 2, 3, 1),
    Sketcher.Constraint("Coincident", 3, 2, 4, 1),
    Sketcher.Constraint("Coincident", 4, 2, 5, 1),
    Sketcher.Constraint("Coincident", 5, 2, 6, 1),
    Sketcher.Constraint("Coincident", 6, 2, 0, 1),
    Sketcher.Constraint("Coincident", 7, 2, 8, 1),
    Sketcher.Constraint("Coincident", 11, 2, 12, 1),
    Sketcher.Constraint("Coincident", 12, 2, 13, 1),
    Sketcher.Constraint("Coincident", 16, 2, 17, 1),
    Sketcher.Constraint("Coincident", 17, 2, 18, 1),
    Sketcher.Constraint("Coincident", 18, 2, 7, 1),
    Sketcher.Constraint("Horizontal", 0),
    Sketcher.Constraint("Vertical", 1),
    Sketcher.Constraint("Horizontal", 5),
    Sketcher.Constraint("Vertical", 6),
    Sketcher.Constraint("Horizontal", 7),
    Sketcher.Constraint("Horizontal", 17),
    Sketcher.Constraint("Vertical", 18),
    Sketcher.Constraint("Horizontal", 6, 2, 7, 2),
    Sketcher.Constraint("Equal", 0, 3),
    Sketcher.Constraint("DistanceX", 7, 1, 7, 2, Q("2.954545 mm")),
])
pocket2 = doc.addObject("PartDesign::Pocket", "Pocket001")
body.addObject(pocket2)
pocket2.Profile = sketch3
pocket2.setExpression("Length", "Params.pocket2_length")

doc.recompute()
